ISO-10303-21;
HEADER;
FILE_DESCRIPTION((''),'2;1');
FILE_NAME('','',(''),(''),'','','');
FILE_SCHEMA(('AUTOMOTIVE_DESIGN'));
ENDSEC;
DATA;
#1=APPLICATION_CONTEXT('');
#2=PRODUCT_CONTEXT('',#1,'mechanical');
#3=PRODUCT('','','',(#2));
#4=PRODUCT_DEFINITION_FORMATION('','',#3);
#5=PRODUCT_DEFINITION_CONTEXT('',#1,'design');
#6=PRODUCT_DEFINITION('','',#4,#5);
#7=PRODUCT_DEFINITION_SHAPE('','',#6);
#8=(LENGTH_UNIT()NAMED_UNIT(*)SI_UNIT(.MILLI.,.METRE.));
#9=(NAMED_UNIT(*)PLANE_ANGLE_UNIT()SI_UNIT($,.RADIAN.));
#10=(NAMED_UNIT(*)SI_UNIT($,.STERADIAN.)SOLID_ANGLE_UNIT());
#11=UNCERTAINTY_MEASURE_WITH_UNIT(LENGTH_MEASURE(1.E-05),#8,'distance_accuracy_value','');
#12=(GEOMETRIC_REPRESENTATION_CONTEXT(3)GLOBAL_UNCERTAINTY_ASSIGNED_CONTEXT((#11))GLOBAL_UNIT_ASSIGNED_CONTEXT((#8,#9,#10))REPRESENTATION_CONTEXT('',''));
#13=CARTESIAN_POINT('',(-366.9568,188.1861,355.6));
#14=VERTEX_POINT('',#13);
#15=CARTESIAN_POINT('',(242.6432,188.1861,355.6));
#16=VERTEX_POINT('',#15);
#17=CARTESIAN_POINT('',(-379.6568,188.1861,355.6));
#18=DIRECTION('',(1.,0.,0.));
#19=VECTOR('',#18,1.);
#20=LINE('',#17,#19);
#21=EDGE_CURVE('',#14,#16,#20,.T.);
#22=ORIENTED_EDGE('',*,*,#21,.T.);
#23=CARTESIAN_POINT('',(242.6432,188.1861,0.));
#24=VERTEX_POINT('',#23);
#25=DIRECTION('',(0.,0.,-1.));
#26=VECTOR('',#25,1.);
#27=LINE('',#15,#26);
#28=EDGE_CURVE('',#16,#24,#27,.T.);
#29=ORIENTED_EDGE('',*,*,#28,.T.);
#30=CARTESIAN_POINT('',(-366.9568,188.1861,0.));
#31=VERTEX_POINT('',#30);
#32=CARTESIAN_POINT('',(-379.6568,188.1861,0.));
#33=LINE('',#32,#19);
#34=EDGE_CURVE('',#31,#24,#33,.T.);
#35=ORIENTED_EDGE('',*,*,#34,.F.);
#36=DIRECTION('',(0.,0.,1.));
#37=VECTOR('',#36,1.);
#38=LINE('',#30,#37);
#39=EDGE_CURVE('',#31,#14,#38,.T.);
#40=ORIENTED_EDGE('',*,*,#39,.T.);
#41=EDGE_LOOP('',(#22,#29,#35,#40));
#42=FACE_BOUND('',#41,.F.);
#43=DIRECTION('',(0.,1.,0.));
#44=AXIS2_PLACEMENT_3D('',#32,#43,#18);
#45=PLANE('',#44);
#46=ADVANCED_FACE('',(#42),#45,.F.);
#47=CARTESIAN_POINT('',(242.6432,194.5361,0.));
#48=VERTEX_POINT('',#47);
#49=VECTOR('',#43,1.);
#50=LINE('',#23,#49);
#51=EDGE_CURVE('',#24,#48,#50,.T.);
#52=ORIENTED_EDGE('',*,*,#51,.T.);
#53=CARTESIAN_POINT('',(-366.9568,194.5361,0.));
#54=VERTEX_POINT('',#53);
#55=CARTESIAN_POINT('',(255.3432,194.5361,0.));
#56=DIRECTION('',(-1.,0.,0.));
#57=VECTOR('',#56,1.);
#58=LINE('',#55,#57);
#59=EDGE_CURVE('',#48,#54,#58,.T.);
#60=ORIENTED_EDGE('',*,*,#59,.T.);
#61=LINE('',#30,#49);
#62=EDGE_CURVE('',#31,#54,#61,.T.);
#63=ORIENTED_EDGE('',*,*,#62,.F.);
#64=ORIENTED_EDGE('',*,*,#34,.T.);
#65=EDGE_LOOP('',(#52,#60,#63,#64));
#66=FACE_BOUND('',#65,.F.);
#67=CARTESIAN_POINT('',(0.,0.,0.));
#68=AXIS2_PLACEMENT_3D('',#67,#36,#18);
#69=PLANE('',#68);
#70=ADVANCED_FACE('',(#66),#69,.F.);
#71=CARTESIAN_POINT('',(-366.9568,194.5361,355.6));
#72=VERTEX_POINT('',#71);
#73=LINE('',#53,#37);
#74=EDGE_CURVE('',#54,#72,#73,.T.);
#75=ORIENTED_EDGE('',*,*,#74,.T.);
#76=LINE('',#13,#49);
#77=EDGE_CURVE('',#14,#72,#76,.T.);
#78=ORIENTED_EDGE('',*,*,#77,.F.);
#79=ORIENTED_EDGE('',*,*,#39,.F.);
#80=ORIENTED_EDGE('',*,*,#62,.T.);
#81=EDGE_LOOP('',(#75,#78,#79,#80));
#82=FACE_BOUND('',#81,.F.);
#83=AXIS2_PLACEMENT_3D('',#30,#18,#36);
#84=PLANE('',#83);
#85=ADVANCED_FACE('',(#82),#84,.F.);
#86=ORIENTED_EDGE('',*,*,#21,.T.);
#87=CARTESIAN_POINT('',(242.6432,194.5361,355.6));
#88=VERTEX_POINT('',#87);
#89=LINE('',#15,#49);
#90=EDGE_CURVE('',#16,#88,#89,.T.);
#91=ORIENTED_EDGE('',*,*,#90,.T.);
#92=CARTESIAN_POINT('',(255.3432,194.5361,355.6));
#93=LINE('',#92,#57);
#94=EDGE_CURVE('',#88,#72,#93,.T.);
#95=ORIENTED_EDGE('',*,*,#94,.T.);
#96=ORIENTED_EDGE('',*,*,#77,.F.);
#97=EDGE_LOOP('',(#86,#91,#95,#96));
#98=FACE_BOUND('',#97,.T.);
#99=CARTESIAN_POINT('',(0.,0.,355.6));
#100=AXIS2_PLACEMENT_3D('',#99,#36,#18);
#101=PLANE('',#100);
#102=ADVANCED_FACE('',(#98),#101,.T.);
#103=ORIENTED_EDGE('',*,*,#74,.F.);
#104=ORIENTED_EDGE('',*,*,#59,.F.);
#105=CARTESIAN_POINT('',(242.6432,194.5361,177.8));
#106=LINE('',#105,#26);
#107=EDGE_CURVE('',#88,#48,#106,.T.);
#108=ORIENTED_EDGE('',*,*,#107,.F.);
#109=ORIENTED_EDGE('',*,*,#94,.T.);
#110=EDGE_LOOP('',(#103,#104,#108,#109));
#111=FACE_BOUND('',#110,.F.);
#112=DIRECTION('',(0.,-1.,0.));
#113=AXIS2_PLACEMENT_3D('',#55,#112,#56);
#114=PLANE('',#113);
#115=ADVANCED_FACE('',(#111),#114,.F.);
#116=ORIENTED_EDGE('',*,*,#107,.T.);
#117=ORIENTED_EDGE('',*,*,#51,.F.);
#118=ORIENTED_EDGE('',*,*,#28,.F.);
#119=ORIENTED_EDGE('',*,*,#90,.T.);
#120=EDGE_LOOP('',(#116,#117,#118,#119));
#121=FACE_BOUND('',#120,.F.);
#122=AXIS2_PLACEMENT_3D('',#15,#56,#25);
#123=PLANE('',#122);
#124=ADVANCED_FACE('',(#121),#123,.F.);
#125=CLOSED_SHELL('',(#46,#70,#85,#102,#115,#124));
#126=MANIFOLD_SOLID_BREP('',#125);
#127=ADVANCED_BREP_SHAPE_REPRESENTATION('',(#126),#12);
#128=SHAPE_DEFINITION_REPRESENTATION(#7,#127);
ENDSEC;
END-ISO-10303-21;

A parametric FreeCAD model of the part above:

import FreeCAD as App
import Part
import Sketcher
from FreeCAD import Vector
Q = App.Units.Quantity


def add_polygon(sketch, points):
    """Adds a closed chain of lines whose ends are joined by coincident constraints."""
    first, n = sketch.GeometryCount, len(points)
    for a, b in zip(points, points[1:] + points[:1]):
        sketch.addGeometry(Part.LineSegment(App.Vector(*a, 0), App.Vector(*b, 0)), False)
    for i in range(n):
        sketch.addConstraint(Sketcher.Constraint("Coincident", first + i, 2, first + (i + 1) % n, 1))

doc = App.newDocument("Part")
body = doc.addObject("PartDesign::Body", "Body")

# Sketch on XY plane
sketch1 = body.newObject("Sketcher::SketchObject", "Sketch")
sketch1.AttachmentSupport = (doc.getObject("XY_Plane"), [""])
sketch1.MapMode = "FlatFace"
add_polygon(sketch1, [(-380, 195), (-380, 188), (255, 188), (255, 195)])  # lines 0-3
sketch1.addConstraint([
    Sketcher.Constraint("Vertical", 0),
    Sketcher.Constraint("Horizontal", 1),
    Sketcher.Constraint("Vertical", 2),
    Sketcher.Constraint("Horizontal", 3),
    Sketcher.Constraint("DistanceX", 1, 1, 1, 2, Q("25 in")),
    Sketcher.Constraint("DistanceY", 0, 2, 0, 1, Q("0.25 in")),
    Sketcher.Constraint("DistanceY", -1, 1, 0, 2, Q("7.4089 in")),
    Sketcher.Constraint("DistanceX", 0, 2, -1, 1, Q("379.6568 mm")),
])
pad1 = body.newObject("PartDesign::Pad", "Pad")
pad1.Profile = sketch1
pad1.Length = Q("14 in")

# Sketch on XZ plane
sketch2 = body.newObject("Sketcher::SketchObject", "Sketch001")
sketch2.AttachmentSupport = (doc.getObject("XZ_Plane"), [""])
sketch2.MapMode = "FlatFace"
sketch2.AttachmentOffset = App.Placement(Vector(0, 0, -7.4089016 * 25.4), App.Rotation())
add_polygon(sketch2, [(255, 0), (255, 356), (243, 356), (243, 0)])  # lines 0-3
add_polygon(sketch2, [(-367, 0), (-367, 356), (-380, 356), (-380, 0)])  # lines 4-7
sketch2.addConstraint([
    Sketcher.Constraint("Vertical", 0),
    Sketcher.Constraint("Horizontal", 1),
    Sketcher.Constraint("Vertical", 2),
    Sketcher.Constraint("Horizontal", 3),
    Sketcher.Constraint("Vertical", 4),
    Sketcher.Constraint("Horizontal", 5),
    Sketcher.Constraint("Vertical", 6),
    Sketcher.Constraint("Horizontal", 7),
    Sketcher.Constraint("PointOnObject", 2, 2, -1),
    Sketcher.Constraint("PointOnObject", 6, 2, -1),
    Sketcher.Constraint("Horizontal", 1, 2, 4, 2),
    Sketcher.Constraint("Equal", 3, 5),
    Sketcher.Constraint("DistanceY", 0, 1, 0, 2, Q("14 in")),
    Sketcher.Constraint("DistanceX", 1, 2, 1, 1, Q("0.5 in")),
    Sketcher.Constraint("DistanceX", 4, 2, 1, 2, Q("24 in")),
    Sketcher.Constraint("DistanceX", -1, 1, 0, 2, Q("255.3432 mm")),
])
pocket1 = body.newObject("PartDesign::Pocket", "Pocket")
pocket1.Profile = sketch2
pocket1.Length = Q("14 in")

doc.recompute()
